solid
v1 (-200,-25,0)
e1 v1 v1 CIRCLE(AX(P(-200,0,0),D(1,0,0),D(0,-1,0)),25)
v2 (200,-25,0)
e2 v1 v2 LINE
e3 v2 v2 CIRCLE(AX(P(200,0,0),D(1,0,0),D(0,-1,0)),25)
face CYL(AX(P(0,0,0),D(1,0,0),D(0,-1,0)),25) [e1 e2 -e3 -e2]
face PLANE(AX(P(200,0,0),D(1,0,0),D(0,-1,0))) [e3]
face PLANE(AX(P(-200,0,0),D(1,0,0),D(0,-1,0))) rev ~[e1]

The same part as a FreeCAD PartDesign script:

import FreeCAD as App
import Part
import Sketcher

V = App.Vector
Q = App.Units.Quantity

doc = App.newDocument("Part")
body = doc.addObject("PartDesign::Body", "Body")

# Sketch on YZ plane
sketch1 = doc.addObject("Sketcher::SketchObject", "Sketch")
body.addObject(sketch1)
sketch1.AttachmentSupport = (doc.YZ_Plane, [""])
sketch1.MapMode = "FlatFace"
sketch1.addGeometry(Part.Circle(V(0, 0, 0), V(0, 0, 1), 25), False)
sketch1.addConstraint([
    Sketcher.Constraint("Coincident", 0, 3, -1, 1),
    Sketcher.Constraint("Diameter", 0, Q("50 mm")),
])
pad1 = doc.addObject("PartDesign::Pad", "Pad")
body.addObject(pad1)
pad1.Profile = sketch1
pad1.Length = 400
pad1.Midplane = True

doc.recompute()
